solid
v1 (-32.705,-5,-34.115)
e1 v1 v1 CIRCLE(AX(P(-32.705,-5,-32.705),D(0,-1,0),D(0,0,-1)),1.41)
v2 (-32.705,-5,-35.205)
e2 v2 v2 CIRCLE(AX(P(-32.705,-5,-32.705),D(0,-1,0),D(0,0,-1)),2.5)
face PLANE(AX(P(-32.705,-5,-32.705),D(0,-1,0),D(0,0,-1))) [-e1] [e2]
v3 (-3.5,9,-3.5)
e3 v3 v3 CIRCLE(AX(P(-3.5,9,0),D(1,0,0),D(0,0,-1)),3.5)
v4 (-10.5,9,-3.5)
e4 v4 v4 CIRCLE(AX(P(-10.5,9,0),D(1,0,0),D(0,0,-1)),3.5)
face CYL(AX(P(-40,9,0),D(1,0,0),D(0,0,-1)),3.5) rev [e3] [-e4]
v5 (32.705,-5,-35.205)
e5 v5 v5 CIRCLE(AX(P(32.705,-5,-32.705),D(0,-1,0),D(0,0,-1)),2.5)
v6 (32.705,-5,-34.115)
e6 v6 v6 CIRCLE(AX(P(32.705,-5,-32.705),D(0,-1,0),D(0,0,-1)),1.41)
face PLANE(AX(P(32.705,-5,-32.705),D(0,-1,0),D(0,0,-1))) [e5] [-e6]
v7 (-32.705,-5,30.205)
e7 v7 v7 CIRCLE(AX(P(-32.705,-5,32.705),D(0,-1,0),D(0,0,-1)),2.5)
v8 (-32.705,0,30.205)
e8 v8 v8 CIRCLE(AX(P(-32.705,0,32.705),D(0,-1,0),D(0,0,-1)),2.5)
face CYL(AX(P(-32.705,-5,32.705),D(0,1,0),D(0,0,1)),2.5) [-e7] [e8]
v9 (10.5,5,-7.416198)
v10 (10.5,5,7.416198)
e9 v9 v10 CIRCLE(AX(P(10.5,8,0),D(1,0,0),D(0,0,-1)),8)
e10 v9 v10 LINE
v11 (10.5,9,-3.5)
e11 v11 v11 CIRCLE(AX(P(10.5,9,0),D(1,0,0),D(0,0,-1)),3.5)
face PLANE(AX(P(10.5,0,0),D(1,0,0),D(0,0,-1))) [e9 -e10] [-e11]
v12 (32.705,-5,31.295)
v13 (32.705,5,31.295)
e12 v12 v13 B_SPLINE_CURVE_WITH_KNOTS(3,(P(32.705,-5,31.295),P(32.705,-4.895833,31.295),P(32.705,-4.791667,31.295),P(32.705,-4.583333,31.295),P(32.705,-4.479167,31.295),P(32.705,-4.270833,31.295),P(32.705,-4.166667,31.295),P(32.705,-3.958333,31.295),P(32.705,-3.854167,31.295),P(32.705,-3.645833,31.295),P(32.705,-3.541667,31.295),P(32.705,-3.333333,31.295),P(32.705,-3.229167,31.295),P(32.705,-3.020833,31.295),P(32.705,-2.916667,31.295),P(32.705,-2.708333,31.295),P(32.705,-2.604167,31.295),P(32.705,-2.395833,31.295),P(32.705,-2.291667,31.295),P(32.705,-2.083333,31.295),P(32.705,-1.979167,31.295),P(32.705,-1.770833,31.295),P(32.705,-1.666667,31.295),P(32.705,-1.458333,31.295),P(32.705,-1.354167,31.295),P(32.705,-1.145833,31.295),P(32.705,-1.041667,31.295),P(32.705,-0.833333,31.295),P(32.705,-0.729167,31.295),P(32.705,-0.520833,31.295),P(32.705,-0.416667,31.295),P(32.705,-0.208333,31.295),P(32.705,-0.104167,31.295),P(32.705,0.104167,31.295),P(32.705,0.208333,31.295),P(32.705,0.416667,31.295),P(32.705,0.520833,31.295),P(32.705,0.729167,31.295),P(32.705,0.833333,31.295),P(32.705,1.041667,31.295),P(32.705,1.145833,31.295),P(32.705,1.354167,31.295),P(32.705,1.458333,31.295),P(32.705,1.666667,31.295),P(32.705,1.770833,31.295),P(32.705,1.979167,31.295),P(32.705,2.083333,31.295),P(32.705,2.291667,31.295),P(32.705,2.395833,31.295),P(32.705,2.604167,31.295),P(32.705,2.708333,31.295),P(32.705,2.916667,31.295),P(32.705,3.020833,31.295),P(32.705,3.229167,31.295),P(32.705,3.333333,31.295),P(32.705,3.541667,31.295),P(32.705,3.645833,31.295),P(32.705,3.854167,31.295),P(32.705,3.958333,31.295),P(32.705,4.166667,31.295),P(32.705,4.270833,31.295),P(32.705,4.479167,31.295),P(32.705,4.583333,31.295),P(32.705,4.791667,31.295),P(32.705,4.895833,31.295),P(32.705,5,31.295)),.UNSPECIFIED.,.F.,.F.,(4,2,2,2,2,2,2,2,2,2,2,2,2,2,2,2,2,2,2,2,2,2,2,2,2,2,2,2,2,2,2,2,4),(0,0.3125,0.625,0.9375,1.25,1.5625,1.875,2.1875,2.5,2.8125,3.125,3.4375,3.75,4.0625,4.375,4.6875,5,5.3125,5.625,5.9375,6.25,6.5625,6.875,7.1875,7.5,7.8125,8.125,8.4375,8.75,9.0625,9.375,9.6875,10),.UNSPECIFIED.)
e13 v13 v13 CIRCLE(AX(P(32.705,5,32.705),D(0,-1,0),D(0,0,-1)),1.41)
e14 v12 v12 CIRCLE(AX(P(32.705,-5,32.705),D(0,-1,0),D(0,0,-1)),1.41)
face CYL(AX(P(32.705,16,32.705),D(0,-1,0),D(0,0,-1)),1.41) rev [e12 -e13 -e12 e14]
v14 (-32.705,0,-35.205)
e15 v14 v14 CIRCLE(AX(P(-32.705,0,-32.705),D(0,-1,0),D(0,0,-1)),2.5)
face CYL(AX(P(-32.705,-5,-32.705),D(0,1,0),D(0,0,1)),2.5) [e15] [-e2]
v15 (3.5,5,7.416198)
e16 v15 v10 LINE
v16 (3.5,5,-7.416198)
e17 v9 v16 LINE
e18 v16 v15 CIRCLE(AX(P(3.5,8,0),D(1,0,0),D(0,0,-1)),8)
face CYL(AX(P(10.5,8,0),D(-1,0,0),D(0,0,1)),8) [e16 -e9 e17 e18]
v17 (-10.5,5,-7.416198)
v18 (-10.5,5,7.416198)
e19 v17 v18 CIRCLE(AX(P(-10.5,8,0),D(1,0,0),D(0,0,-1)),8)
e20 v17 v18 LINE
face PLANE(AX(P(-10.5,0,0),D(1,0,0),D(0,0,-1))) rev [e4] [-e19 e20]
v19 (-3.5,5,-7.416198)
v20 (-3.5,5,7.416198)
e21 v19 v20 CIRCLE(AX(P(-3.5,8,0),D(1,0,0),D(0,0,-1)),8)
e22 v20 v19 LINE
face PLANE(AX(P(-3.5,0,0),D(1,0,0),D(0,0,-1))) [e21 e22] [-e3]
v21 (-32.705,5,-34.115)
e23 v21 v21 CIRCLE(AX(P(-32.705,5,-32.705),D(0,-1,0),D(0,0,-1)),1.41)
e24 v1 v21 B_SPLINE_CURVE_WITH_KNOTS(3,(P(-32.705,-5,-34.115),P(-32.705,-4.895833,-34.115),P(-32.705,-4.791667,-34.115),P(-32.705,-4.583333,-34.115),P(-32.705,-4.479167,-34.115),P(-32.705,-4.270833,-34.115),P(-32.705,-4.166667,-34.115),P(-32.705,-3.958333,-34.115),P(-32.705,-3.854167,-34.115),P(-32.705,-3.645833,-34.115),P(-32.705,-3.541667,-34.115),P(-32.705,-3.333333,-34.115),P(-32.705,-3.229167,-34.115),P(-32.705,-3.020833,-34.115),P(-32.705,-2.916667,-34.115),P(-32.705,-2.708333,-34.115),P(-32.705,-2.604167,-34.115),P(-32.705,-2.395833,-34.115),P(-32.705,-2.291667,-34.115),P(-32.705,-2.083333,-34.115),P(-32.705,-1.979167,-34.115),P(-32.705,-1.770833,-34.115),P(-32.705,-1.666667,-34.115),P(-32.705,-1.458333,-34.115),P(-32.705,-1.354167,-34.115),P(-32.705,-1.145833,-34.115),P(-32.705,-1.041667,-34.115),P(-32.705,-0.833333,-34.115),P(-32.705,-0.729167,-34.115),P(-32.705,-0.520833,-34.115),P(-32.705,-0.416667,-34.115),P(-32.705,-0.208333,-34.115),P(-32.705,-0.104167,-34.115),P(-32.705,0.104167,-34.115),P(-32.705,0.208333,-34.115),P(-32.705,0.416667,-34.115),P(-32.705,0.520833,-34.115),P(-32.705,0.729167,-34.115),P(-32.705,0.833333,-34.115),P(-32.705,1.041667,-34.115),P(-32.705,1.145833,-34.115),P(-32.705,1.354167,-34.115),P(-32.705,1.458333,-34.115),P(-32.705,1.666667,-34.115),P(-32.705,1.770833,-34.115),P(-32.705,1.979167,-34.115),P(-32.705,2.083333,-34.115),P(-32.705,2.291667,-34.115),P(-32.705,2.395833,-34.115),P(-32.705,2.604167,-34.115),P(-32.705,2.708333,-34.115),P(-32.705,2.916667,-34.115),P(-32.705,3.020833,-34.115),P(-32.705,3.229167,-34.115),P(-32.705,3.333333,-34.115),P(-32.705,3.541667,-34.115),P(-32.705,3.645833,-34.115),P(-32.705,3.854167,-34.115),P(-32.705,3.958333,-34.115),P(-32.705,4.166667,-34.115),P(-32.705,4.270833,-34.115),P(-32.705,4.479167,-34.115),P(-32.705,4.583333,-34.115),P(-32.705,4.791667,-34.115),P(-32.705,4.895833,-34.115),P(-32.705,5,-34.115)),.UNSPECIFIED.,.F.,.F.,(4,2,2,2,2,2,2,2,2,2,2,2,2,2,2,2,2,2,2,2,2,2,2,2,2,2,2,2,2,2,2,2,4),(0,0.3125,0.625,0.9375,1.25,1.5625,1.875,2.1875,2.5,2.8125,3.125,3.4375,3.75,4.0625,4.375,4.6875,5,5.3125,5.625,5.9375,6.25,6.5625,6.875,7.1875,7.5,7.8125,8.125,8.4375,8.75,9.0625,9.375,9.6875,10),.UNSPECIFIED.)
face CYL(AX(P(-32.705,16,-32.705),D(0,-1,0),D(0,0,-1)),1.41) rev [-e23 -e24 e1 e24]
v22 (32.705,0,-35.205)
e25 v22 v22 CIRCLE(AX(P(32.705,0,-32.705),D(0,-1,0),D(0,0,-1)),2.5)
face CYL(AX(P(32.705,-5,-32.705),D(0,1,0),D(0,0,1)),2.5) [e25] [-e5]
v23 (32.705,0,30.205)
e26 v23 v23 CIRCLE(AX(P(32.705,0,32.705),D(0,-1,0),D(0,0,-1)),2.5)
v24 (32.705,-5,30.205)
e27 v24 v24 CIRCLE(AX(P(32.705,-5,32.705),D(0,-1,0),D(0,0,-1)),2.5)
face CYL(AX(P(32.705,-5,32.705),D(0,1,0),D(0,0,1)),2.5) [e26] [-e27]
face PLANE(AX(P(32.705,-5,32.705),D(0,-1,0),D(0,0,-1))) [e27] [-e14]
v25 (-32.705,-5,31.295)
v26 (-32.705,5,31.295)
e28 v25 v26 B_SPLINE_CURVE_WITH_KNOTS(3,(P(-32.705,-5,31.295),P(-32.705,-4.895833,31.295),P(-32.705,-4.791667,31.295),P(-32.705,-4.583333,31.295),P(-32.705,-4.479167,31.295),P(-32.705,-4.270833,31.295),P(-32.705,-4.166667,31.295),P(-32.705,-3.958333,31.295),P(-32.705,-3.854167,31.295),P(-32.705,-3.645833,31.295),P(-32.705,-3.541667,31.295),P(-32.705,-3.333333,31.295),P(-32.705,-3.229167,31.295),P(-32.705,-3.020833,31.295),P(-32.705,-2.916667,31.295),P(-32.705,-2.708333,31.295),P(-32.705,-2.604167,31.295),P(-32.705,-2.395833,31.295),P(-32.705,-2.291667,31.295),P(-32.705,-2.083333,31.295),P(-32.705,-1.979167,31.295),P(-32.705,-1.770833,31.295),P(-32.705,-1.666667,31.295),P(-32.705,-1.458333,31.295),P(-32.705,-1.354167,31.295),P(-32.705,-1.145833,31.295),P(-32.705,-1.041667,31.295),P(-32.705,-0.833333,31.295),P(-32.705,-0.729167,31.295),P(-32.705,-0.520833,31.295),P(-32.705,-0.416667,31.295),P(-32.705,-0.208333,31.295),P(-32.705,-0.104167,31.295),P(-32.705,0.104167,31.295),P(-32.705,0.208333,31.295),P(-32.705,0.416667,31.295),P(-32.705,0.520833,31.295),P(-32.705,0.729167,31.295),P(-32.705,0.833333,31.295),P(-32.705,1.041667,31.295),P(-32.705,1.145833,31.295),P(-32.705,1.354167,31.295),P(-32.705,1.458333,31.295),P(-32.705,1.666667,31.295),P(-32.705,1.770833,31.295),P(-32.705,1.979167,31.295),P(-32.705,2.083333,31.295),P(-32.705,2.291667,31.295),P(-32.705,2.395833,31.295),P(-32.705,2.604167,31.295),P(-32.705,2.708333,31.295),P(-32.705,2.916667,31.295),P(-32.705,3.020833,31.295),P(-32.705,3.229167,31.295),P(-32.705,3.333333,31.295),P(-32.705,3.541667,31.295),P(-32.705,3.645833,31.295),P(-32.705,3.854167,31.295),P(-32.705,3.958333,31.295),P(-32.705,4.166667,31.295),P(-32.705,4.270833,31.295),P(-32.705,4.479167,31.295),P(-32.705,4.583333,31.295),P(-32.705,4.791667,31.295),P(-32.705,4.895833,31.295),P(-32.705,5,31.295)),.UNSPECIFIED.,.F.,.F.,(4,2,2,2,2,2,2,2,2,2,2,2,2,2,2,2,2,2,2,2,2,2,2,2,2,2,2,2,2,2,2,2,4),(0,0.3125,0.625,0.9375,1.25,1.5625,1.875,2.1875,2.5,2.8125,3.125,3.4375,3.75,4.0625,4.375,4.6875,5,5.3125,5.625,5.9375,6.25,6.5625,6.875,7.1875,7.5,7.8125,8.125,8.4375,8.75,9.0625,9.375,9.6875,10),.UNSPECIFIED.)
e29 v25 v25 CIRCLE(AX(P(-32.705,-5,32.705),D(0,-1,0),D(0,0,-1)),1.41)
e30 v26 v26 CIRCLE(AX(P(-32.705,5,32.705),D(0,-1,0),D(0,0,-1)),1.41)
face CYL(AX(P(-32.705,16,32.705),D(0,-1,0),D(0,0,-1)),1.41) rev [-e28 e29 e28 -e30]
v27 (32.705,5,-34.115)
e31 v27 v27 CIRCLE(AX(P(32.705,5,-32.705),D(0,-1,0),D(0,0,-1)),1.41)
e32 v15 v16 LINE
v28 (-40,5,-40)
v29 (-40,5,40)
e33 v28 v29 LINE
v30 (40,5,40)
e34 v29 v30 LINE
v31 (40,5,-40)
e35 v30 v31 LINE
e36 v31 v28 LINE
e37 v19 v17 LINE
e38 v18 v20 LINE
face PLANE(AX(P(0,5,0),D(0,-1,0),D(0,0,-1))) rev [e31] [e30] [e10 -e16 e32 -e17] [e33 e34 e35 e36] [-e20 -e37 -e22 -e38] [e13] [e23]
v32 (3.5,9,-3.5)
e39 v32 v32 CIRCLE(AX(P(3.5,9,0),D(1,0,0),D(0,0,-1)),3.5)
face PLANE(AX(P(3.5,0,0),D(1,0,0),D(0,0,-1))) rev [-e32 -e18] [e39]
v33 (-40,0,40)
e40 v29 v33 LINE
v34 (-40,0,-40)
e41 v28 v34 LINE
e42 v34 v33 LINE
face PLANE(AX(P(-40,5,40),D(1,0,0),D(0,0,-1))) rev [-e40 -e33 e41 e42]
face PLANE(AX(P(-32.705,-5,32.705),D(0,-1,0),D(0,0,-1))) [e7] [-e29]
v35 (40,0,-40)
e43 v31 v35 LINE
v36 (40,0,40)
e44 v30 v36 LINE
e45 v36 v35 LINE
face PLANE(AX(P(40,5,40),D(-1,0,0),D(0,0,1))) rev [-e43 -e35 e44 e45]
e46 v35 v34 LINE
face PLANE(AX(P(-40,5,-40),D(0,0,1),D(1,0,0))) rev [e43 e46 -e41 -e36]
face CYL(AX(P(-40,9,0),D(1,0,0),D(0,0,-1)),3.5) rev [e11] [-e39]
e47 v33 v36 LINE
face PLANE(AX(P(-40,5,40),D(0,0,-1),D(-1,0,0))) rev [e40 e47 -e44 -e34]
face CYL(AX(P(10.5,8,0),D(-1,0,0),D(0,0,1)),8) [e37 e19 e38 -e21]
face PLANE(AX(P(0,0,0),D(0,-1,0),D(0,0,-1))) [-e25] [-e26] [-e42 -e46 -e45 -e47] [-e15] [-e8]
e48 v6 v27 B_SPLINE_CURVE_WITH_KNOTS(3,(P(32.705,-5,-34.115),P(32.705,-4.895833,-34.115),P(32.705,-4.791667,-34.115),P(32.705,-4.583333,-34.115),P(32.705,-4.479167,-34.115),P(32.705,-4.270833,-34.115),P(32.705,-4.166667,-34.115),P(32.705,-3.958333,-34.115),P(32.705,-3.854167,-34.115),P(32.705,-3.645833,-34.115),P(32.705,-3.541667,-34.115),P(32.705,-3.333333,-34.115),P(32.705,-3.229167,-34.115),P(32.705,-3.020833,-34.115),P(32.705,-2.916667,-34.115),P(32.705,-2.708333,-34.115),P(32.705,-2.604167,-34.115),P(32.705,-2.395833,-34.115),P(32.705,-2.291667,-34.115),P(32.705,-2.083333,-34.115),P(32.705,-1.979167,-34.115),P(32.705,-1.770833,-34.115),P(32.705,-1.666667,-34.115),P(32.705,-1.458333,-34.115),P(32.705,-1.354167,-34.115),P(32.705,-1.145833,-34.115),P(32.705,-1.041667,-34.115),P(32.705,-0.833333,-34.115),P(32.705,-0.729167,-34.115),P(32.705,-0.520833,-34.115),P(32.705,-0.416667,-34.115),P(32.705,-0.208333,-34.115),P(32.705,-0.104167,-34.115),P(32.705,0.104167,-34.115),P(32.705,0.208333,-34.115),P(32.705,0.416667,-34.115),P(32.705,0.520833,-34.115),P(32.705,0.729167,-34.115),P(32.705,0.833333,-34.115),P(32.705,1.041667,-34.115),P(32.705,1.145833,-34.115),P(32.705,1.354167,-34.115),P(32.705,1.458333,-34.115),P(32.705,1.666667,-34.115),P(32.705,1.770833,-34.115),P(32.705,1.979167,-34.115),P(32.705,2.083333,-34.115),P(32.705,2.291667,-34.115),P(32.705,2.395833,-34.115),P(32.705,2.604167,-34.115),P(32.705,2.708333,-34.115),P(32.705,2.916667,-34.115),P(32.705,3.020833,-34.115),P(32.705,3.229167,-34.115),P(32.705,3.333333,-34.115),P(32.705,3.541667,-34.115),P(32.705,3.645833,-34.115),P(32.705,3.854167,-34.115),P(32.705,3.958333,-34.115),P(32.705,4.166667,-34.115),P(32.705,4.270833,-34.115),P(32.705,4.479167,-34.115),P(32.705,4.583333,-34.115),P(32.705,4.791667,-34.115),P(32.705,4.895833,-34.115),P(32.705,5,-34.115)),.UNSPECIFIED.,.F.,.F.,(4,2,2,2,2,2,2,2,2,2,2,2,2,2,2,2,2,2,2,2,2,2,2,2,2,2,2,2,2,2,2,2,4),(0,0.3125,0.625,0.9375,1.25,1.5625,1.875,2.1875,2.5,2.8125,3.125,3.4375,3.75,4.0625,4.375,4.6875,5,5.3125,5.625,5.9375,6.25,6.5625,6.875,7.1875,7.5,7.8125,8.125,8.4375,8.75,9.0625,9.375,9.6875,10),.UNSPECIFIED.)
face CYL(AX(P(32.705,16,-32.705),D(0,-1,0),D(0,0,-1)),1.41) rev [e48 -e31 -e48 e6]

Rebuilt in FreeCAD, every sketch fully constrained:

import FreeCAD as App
import Part
import Sketcher
from FreeCAD import Vector


def add_polygon(sketch, points):
    """Adds a closed chain of lines whose ends are joined by coincident constraints."""
    first, n = sketch.GeometryCount, len(points)
    for a, b in zip(points, points[1:] + points[:1]):
        sketch.addGeometry(Part.LineSegment(App.Vector(*a, 0), App.Vector(*b, 0)), False)
    for i in range(n):
        sketch.addConstraint(Sketcher.Constraint("Coincident", first + i, 2, first + (i + 1) % n, 1))

doc = App.newDocument("Part")
body = doc.addObject("PartDesign::Body", "Body")

# Sketch on XZ plane
sketch1 = body.newObject("Sketcher::SketchObject", "Sketch")
sketch1.AttachmentSupport = (doc.getObject("XZ_Plane"), [""])
sketch1.MapMode = "FlatFace"
add_polygon(sketch1, [(-40, -40), (-40, 40), (40, 40), (40, -40)])  # lines 0-3
sketch1.addConstraint(Sketcher.Constraint("Vertical", 0))
sketch1.addConstraint(Sketcher.Constraint("Horizontal", 1))
sketch1.addConstraint(Sketcher.Constraint("Vertical", 2))
sketch1.addConstraint(Sketcher.Constraint("Horizontal", 3))
sketch1.addConstraint(Sketcher.Constraint("Symmetric", 0, 2, 2, 2, -1, 1))
sketch1.addConstraint(Sketcher.Constraint("Equal", 3, 0))
sketch1.addConstraint(Sketcher.Constraint("DistanceX", 1, 1, 1, 2, 80.0))
pad1 = body.newObject("PartDesign::Pad", "Pad")
pad1.Profile = sketch1
pad1.Length = 5
pad1.Reversed = True

# Sketch on YZ plane
sketch2 = body.newObject("Sketcher::SketchObject", "Sketch001")
sketch2.AttachmentSupport = (doc.getObject("YZ_Plane"), [""])
sketch2.MapMode = "FlatFace"
sketch2.addGeometry(Part.Circle(Vector(8, 0, 0), Vector(0, 0, 1), 8), False)
sketch2.addConstraint(Sketcher.Constraint("PointOnObject", 0, 3, -1))
sketch2.addConstraint(Sketcher.Constraint("Diameter", 0, 16.0))
sketch2.addConstraint(Sketcher.Constraint("DistanceX", -1, 1, 0, 3, 8.0))
pad2 = body.newObject("PartDesign::Pad", "Pad001")
pad2.Profile = sketch2
pad2.Length = 21
pad2.Midplane = True

# Sketch on YZ plane
sketch3 = body.newObject("Sketcher::SketchObject", "Sketch002")
sketch3.AttachmentSupport = (doc.getObject("YZ_Plane"), [""])
sketch3.MapMode = "FlatFace"
add_polygon(sketch3, [(5, 115), (5, -115), (220, -115), (220, 115)])  # lines 0-3
sketch3.addConstraint(Sketcher.Constraint("Vertical", 0))
sketch3.addConstraint(Sketcher.Constraint("Horizontal", 1))
sketch3.addConstraint(Sketcher.Constraint("Vertical", 2))
sketch3.addConstraint(Sketcher.Constraint("Horizontal", 3))
sketch3.addConstraint(Sketcher.Constraint("DistanceX", -1, 1, 0, 2, 5.0))
sketch3.addConstraint(Sketcher.Constraint("DistanceY", 0, 2, 0, 1, 229.534051))
sketch3.addConstraint(Sketcher.Constraint("DistanceX", 1, 1, 1, 2, 214.701654))
sketch3.addConstraint(Sketcher.Constraint("DistanceY", 0, 2, -1, 1, 114.767025))
pocket1 = body.newObject("PartDesign::Pocket", "Pocket")
pocket1.Profile = sketch3
pocket1.Length = 7
pocket1.Midplane = True

# Sketch on YZ plane
sketch4 = body.newObject("Sketcher::SketchObject", "Sketch003")
sketch4.AttachmentSupport = (doc.getObject("YZ_Plane"), [""])
sketch4.MapMode = "FlatFace"
sketch4.AttachmentOffset = App.Placement(Vector(0, 0, 10.5), App.Rotation())
sketch4.addGeometry(Part.Circle(Vector(9, 0, 0), Vector(0, 0, 1), 3.5), False)
sketch4.addConstraint(Sketcher.Constraint("PointOnObject", 0, 3, -1))
sketch4.addConstraint(Sketcher.Constraint("Diameter", 0, 7.0))
sketch4.addConstraint(Sketcher.Constraint("DistanceX", -1, 1, 0, 3, 9.0))
pocket2 = body.newObject("PartDesign::Pocket", "Pocket001")
pocket2.Profile = sketch4
pocket2.Type = "ThroughAll"

# Sketch on XZ plane
sketch5 = body.newObject("Sketcher::SketchObject", "Sketch004")
sketch5.AttachmentSupport = (doc.getObject("XZ_Plane"), [""])
sketch5.MapMode = "FlatFace"
sketch5.addGeometry(Part.Circle(Vector(-32.7, 32.7, 0), Vector(0, 0, 1), 2.5), False)
sketch5.addGeometry(Part.Circle(Vector(32.7, 32.7, 0), Vector(0, 0, 1), 2.5), False)
sketch5.addGeometry(Part.Circle(Vector(-32.7, -32.7, 0), Vector(0, 0, 1), 2.5), False)
sketch5.addGeometry(Part.Circle(Vector(32.7, -32.7, 0), Vector(0, 0, 1), 2.5), False)
sketch5.addConstraint(Sketcher.Constraint("Equal", 0, 1))
sketch5.addConstraint(Sketcher.Constraint("Equal", 1, 2))
sketch5.addConstraint(Sketcher.Constraint("Equal", 2, 3))
sketch5.addConstraint(Sketcher.Constraint("Symmetric", 1, 3, 2, 3, -1, 1))
sketch5.addConstraint(Sketcher.Constraint("Symmetric", 0, 3, 3, 3, -1, 1))
sketch5.addConstraint(Sketcher.Constraint("Symmetric", 0, 3, 1, 3, -2))
sketch5.addConstraint(Sketcher.Constraint("Diameter", 0, 5.0))
sketch5.addConstraint(Sketcher.Constraint("DistanceX", 0, 3, 1, 3, 65.41))
sketch5.addConstraint(Sketcher.Constraint("DistanceY", 2, 3, 0, 3, 65.41))
pad3 = body.newObject("PartDesign::Pad", "Pad002")
pad3.Profile = sketch5
pad3.Length = 5

# Sketch on XZ plane
sketch6 = body.newObject("Sketcher::SketchObject", "Sketch005")
sketch6.AttachmentSupport = (doc.getObject("XZ_Plane"), [""])
sketch6.MapMode = "FlatFace"
sketch6.AttachmentOffset = App.Placement(Vector(0, 0, 5), App.Rotation())
sketch6.addGeometry(Part.Circle(Vector(-32.7, -32.7, 0), Vector(0, 0, 1), 1.4), False)
sketch6.addGeometry(Part.Circle(Vector(-32.7, 32.7, 0), Vector(0, 0, 1), 1.4), False)
sketch6.addGeometry(Part.Circle(Vector(32.7, 32.7, 0), Vector(0, 0, 1), 1.4), False)
sketch6.addGeometry(Part.Circle(Vector(32.7, -32.7, 0), Vector(0, 0, 1), 1.4), False)
sketch6.addConstraint(Sketcher.Constraint("Equal", 0, 1))
sketch6.addConstraint(Sketcher.Constraint("Equal", 1, 2))
sketch6.addConstraint(Sketcher.Constraint("Equal", 2, 3))
sketch6.addConstraint(Sketcher.Constraint("Symmetric", 0, 3, 2, 3, -1, 1))
sketch6.addConstraint(Sketcher.Constraint("Symmetric", 1, 3, 3, 3, -1, 1))
sketch6.addConstraint(Sketcher.Constraint("Symmetric", 1, 3, 2, 3, -2))
sketch6.addConstraint(Sketcher.Constraint("Diameter", 0, 2.82))
sketch6.addConstraint(Sketcher.Constraint("DistanceY", 0, 3, 1, 3, 65.41))
sketch6.addConstraint(Sketcher.Constraint("DistanceX", 1, 3, 2, 3, 65.41))
pocket3 = body.newObject("PartDesign::Pocket", "Pocket002")
pocket3.Profile = sketch6
pocket3.Type = "ThroughAll"

doc.recompute()
